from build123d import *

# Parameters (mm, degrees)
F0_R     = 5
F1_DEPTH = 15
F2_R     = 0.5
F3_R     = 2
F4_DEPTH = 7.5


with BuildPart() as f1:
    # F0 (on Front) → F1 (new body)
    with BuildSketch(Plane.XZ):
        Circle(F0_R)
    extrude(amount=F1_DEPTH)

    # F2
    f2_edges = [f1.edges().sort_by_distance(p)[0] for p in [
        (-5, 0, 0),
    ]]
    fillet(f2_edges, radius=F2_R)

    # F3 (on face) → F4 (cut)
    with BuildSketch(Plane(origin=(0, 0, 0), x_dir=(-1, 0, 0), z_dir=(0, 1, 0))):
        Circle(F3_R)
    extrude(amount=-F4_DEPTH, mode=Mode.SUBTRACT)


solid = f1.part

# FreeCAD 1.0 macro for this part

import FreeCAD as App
import Part
import Sketcher
from FreeCAD import Vector


def edges_at(feature, points):
    """Names of the edges that pass closest to the given points."""
    edges = feature.Shape.Edges
    near = lambda p: min(range(len(edges)), key=lambda i: edges[i].distToShape(Part.Vertex(*p))[0])
    return sorted({f"Edge{near(p) + 1}" for p in points})

doc = App.newDocument("Part")
params = doc.addObject("Spreadsheet::Sheet", "Params")
for row, (alias, value) in enumerate([
    ("sketch1_diameter", "10 mm"),
    ("pad1_length", "15 mm"),
    ("fillet_radius", "0.5 mm"),
    ("sketch2_diameter", "4 mm"),
    ("pocket1_length", "7.5 mm"),
], start=1):
    params.set(f"A{row}", alias)
    params.set(f"B{row}", "=" + value)
    params.setAlias(f"B{row}", alias)

body = doc.addObject("PartDesign::Body", "Body")

# Sketch on XZ plane
sketch1 = body.newObject("Sketcher::SketchObject", "Sketch")
sketch1.AttachmentSupport = (doc.getObject("XZ_Plane"), [""])
sketch1.MapMode = "FlatFace"
sketch1.addGeometry(Part.Circle(Vector(0, 0, 0), Vector(0, 0, 1), 5), False)
sketch1.addConstraint([
    Sketcher.Constraint("Coincident", 0, 3, -1, 1),
    Sketcher.Constraint("Diameter", 0, 10.0),
])
sketch1.setExpression("Constraints[1]", "Params.sketch1_diameter")
pad1 = body.newObject("PartDesign::Pad", "Pad")
pad1.Profile = sketch1
pad1.setExpression("Length", "Params.pad1_length")
doc.recompute()

fillet = body.newObject("PartDesign::Fillet", "Fillet")
fillet.Base = (pad1, edges_at(pad1, [(-5, 0, 0)]))
fillet.setExpression("Radius", "Params.fillet_radius")

# Sketch on XZ plane
sketch2 = body.newObject("Sketcher::SketchObject", "Sketch001")
sketch2.AttachmentSupport = (doc.getObject("XZ_Plane"), [""])
sketch2.MapMode = "FlatFace"
sketch2.addGeometry(Part.Circle(Vector(0, 0, 0), Vector(0, 0, 1), 2), False)
sketch2.addConstraint([
    Sketcher.Constraint("Coincident", 0, 3, -1, 1),
    Sketcher.Constraint("Diameter", 0, 4.0),
])
sketch2.setExpression("Constraints[1]", "Params.sketch2_diameter")
pocket1 = body.newObject("PartDesign::Pocket", "Pocket")
pocket1.Profile = sketch2
pocket1.setExpression("Length", "Params.pocket1_length")
pocket1.Reversed = True

doc.recompute()
